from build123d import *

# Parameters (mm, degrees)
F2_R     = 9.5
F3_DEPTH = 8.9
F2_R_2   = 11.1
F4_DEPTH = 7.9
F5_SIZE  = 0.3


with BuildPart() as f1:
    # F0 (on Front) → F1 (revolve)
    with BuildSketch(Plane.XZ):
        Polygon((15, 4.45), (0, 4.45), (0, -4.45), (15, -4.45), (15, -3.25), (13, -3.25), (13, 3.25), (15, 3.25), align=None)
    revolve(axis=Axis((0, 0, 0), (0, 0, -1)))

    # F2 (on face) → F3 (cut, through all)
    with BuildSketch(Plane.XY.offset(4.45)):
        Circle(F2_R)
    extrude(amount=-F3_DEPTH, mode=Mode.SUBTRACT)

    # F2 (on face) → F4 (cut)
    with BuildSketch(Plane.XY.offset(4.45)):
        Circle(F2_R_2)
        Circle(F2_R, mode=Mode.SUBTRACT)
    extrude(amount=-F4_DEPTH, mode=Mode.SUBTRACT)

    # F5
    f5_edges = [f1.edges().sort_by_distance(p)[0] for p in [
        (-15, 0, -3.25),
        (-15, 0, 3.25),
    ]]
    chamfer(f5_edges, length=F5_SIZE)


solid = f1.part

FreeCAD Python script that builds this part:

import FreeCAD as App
import Part
import Sketcher

V = App.Vector
Q = App.Units.Quantity


def edges_at(feature, points):
    """Names of the edges that pass closest to the given points."""
    edges = feature.Shape.Edges
    near = lambda p: min(range(len(edges)), key=lambda i: edges[i].distToShape(Part.Vertex(*p))[0])
    return sorted({f"Edge{near(p) + 1}" for p in points})


def add_polygon(sketch, points):
    """Adds a closed chain of lines whose ends are joined by coincident constraints."""
    first, n = sketch.GeometryCount, len(points)
    for a, b in zip(points, points[1:] + points[:1]):
        sketch.addGeometry(Part.LineSegment(App.Vector(*a, 0), App.Vector(*b, 0)), False)
    for i in range(n):
        sketch.addConstraint(Sketcher.Constraint("Coincident", first + i, 2, first + (i + 1) % n, 1))

doc = App.newDocument("Part")
body = doc.addObject("PartDesign::Body", "Body")

sketch1 = body.newObject("Sketcher::SketchObject", "Sketch")
sketch1.AttachmentSupport = (doc.getObject("XZ_Plane"), [""])
sketch1.MapMode = "FlatFace"
add_polygon(sketch1, [(15, 4.5), (0, 4.5), (0, -4.5), (15, -4.5), (15, -3.2), (13, -3.2), (13, 3.2), (15, 3.2)])
sketch1.addConstraint([
    Sketcher.Constraint("Horizontal", 0),
    Sketcher.Constraint("Vertical", 1),
    Sketcher.Constraint("Horizontal", 2),
    Sketcher.Constraint("Vertical", 3),
    Sketcher.Constraint("Horizontal", 4),
    Sketcher.Constraint("Vertical", 5),
    Sketcher.Constraint("Horizontal", 6),
    Sketcher.Constraint("Vertical", 7),
    Sketcher.Constraint("Symmetric", 0, 2, 1, 2, -1, 1),
    Sketcher.Constraint("Symmetric", 3, 2, 6, 2, -1),
    Sketcher.Constraint("DistanceX", 0, 2, 0, 1, Q("15 mm")),
    Sketcher.Constraint("DistanceX", 4, 2, 4, 1, Q("2 mm")),
    Sketcher.Constraint("DistanceY", 1, 2, 1, 1, Q("8.9 mm")),
    Sketcher.Constraint("DistanceY", 3, 1, 3, 2, Q("1.2 mm")),
])
revolution = body.newObject("PartDesign::Revolution", "Revolution")
revolution.Profile = sketch1
revolution.ReferenceAxis = (sketch1, ["V_Axis"])
revolution.Angle = 360

sketch2 = body.newObject("Sketcher::SketchObject", "Sketch001")
sketch2.AttachmentSupport = (doc.getObject("XY_Plane"), [""])
sketch2.MapMode = "FlatFace"
sketch2.AttachmentOffset = App.Placement(V(0, 0, 4.45), App.Rotation())
sketch2.addGeometry(Part.Circle(V(0, 0, 0), V(0, 0, 1), 10), False)
sketch2.addConstraint([
    Sketcher.Constraint("Coincident", 0, 3, -1, 1),
    Sketcher.Constraint("Diameter", 0, Q("19 mm")),
])
pocket1 = body.newObject("PartDesign::Pocket", "Pocket")
pocket1.Profile = sketch2
pocket1.Type = "ThroughAll"

sketch3 = body.newObject("Sketcher::SketchObject", "Sketch002")
sketch3.AttachmentSupport = (doc.getObject("XY_Plane"), [""])
sketch3.MapMode = "FlatFace"
sketch3.AttachmentOffset = App.Placement(V(0, 0, 4.45), App.Rotation())
sketch3.addGeometry([
    Part.Circle(V(0, 0, 0), V(0, 0, 1), 11),
    Part.Circle(V(0, 0, 0), V(0, 0, 1), 10),
], False)
sketch3.addConstraint([
    Sketcher.Constraint("Coincident", 0, 3, -1, 1),
    Sketcher.Constraint("Coincident", 1, 3, -1, 1),
    Sketcher.Constraint("Diameter", 1, Q("19 mm")),
    Sketcher.Constraint("Diameter", 0, Q("22.2 mm")),
])
pocket2 = body.newObject("PartDesign::Pocket", "Pocket001")
pocket2.Profile = sketch3
pocket2.Length = 7.9
doc.recompute()

chamfer = body.newObject("PartDesign::Chamfer", "Chamfer")
chamfer.Base = (pocket2, edges_at(pocket2, [(-15, 0, -3.25), (-15, 0, 3.25)]))
chamfer.Size = 0.3

doc.recompute()
